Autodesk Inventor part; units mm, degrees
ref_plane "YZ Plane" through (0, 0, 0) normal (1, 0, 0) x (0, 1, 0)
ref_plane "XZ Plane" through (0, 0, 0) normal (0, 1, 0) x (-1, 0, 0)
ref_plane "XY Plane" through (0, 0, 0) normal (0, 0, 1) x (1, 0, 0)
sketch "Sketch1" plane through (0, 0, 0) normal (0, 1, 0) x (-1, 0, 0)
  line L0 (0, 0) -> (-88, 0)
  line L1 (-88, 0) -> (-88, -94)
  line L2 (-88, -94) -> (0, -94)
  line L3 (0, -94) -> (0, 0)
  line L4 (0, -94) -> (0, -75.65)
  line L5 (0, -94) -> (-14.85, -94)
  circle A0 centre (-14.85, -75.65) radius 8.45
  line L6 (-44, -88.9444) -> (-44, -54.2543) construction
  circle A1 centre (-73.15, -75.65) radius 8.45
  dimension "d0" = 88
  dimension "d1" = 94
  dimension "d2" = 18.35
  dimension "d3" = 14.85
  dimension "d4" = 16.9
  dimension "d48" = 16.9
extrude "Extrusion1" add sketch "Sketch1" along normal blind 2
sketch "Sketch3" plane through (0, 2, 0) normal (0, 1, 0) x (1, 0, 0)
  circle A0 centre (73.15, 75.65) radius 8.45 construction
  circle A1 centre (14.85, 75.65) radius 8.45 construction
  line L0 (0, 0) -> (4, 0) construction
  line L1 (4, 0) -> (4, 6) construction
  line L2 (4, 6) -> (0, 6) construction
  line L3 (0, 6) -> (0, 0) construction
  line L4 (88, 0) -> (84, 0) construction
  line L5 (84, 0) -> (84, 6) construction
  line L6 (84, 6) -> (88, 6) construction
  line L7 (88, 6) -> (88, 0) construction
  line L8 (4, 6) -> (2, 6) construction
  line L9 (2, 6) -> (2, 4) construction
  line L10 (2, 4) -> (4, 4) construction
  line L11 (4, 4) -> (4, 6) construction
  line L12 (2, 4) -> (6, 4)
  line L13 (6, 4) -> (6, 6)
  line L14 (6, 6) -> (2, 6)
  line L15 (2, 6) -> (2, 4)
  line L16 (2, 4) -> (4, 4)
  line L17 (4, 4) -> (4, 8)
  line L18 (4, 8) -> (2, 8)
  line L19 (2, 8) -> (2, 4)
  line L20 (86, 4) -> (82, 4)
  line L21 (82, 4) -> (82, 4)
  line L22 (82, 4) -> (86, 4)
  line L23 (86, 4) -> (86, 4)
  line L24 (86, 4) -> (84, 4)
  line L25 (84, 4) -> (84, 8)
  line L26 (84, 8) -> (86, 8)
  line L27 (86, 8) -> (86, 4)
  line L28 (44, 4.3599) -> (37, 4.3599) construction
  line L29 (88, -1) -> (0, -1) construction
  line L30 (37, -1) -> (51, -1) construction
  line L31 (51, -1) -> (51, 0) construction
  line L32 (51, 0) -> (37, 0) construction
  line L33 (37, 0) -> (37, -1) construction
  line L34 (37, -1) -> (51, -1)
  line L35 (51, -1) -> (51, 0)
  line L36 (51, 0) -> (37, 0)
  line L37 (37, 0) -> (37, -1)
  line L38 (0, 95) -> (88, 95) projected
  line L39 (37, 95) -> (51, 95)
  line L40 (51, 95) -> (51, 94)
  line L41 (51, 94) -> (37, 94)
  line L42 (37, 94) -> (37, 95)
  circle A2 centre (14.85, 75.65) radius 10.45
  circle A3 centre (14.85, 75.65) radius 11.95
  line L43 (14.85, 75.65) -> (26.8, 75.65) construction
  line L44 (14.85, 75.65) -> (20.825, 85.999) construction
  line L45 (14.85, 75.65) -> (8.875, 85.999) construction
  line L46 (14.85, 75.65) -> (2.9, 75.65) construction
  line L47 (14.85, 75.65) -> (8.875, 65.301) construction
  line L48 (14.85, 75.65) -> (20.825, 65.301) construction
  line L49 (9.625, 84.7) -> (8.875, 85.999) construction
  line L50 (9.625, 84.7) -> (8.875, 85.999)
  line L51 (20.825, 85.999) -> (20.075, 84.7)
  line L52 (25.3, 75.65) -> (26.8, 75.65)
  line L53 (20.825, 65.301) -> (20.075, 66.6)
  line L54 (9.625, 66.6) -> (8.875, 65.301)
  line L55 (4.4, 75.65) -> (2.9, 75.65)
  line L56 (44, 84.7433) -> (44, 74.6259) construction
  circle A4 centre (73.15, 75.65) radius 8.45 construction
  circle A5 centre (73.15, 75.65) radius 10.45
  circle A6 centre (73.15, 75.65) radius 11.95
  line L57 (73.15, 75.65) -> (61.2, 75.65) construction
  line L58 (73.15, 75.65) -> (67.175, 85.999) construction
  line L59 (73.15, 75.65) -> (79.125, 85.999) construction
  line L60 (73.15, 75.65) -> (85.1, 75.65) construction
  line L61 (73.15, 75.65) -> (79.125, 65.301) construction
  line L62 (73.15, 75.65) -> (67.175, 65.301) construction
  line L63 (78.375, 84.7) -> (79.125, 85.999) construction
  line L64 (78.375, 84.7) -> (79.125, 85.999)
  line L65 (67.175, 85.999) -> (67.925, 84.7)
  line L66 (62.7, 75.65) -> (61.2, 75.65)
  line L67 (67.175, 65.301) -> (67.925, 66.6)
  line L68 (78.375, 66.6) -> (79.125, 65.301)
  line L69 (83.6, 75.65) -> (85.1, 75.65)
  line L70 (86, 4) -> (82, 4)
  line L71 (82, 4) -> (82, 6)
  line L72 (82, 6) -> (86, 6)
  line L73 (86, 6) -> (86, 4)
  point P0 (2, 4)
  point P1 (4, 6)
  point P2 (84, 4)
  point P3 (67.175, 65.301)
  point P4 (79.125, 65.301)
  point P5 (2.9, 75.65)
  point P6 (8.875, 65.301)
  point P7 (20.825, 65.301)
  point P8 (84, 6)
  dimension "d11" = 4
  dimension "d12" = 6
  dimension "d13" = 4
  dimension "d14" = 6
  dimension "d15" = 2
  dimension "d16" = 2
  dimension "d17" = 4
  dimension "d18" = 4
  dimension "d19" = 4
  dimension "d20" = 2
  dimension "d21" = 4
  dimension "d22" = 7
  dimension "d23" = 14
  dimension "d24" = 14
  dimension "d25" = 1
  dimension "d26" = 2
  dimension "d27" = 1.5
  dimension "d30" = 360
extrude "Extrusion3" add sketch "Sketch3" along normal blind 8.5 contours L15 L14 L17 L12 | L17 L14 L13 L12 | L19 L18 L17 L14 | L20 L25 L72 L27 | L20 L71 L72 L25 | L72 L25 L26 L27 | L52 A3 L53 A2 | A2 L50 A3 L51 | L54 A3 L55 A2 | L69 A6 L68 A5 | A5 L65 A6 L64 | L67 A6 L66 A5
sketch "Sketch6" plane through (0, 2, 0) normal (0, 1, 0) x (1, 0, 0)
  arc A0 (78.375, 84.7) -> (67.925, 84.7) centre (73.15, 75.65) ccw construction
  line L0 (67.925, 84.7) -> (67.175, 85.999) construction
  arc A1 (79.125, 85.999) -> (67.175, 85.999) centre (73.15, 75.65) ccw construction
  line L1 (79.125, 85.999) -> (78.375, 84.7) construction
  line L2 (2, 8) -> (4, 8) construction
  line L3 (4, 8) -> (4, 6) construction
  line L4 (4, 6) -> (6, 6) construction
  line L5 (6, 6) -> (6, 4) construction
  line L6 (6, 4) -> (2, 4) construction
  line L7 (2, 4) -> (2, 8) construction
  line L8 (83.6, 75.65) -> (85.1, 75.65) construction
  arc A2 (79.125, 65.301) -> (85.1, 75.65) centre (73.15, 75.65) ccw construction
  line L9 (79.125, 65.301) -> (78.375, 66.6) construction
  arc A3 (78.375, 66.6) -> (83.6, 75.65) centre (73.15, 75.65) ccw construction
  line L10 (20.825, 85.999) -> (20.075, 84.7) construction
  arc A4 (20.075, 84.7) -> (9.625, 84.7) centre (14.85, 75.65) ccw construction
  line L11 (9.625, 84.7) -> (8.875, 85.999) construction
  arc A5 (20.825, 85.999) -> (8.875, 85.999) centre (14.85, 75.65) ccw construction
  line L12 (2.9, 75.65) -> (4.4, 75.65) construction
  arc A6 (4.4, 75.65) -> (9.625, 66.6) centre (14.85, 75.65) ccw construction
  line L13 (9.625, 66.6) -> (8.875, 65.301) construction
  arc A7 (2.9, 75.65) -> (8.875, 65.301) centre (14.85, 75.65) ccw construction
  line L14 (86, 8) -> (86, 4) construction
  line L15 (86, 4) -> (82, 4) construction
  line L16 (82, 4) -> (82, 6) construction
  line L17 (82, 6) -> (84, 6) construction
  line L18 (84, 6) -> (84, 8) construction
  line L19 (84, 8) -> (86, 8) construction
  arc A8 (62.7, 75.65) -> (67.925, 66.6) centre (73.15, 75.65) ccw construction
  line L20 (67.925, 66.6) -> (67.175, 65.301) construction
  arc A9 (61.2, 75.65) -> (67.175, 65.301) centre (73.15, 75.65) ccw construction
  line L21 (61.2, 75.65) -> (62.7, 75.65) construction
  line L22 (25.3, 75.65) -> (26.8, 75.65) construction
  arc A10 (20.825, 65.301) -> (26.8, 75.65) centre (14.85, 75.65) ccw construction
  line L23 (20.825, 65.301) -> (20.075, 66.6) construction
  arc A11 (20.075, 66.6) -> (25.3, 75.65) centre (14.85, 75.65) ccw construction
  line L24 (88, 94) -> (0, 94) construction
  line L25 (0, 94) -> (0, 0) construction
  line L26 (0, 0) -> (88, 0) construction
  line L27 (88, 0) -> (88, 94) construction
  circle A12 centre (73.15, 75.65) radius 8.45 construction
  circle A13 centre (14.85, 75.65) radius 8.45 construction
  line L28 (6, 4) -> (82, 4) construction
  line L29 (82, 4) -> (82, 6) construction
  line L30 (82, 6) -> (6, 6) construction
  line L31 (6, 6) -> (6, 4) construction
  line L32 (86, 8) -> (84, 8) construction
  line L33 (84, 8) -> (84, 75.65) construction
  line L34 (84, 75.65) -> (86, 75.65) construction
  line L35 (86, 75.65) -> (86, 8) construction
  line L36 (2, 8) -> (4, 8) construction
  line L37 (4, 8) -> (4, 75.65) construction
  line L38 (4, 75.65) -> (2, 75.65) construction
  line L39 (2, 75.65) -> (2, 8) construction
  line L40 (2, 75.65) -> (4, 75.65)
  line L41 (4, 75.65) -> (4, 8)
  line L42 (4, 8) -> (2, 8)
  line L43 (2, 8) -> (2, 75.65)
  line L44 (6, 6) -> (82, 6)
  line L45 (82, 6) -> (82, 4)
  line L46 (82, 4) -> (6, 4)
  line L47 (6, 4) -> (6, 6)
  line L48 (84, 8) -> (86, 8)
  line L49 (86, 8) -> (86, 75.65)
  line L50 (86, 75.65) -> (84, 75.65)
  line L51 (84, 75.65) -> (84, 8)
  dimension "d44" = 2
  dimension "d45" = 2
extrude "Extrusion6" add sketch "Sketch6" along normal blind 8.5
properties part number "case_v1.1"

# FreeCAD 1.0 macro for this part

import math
import FreeCAD as App
import Part
import Sketcher
from FreeCAD import Vector
Q = App.Units.Quantity

doc = App.newDocument("Part")
params = doc.addObject("Spreadsheet::Sheet", "Params")
for row, (alias, value) in enumerate([
    ("sketch1_diameter", "16.9 mm"),
    ("sketch1_width", "88 mm"),
    ("sketch1_height", "94 mm"),
    ("pad1_length", "2 mm"),
    ("sketch2_width", "4 mm"),
    ("sketch2_width2", "1.5 mm"),
    ("sketch2_radius", "10.45 mm"),
    ("pad2_length", "8.5 mm"),
    ("sketch3_width", "2 mm"),
    ("sketch3_width2", "76 mm"),
    ("sketch3_height", "67.65 mm"),
    ("pad3_length", "8.5 mm"),
], start=1):
    params.set(f"A{row}", alias)
    params.set(f"B{row}", "=" + value)
    params.setAlias(f"B{row}", alias)

body = doc.addObject("PartDesign::Body", "Body")

sketch1 = doc.addObject("Sketcher::SketchObject", "Sketch")
body.addObject(sketch1)
sketch1.AttachmentSupport = (doc.XZ_Plane, [""])
sketch1.MapMode = "FlatFace"
sketch1.addGeometry([
    Part.LineSegment(Vector(0, -94, 0), Vector(0, 0, 0)),
    Part.LineSegment(Vector(0, 0, 0), Vector(88, 0, 0)),
    Part.LineSegment(Vector(88, 0, 0), Vector(88, -94, 0)),
    Part.LineSegment(Vector(88, -94, 0), Vector(0, -94, 0)),
    Part.Circle(Vector(73, -76, 0), Vector(0, 0, 1), 8),
    Part.Circle(Vector(15, -76, 0), Vector(0, 0, 1), 8),
], False)
sketch1.addConstraint([
    Sketcher.Constraint("Coincident", 0, 2, 1, 1),
    Sketcher.Constraint("Coincident", 1, 2, 2, 1),
    Sketcher.Constraint("Coincident", 2, 2, 3, 1),
    Sketcher.Constraint("Coincident", 3, 2, 0, 1),
    Sketcher.Constraint("Vertical", 0),
    Sketcher.Constraint("Horizontal", 1),
    Sketcher.Constraint("Vertical", 2),
    Sketcher.Constraint("Horizontal", 3),
    Sketcher.Constraint("Coincident", 0, 2, -1, 1),
    Sketcher.Constraint("Equal", 4, 5),
    Sketcher.Constraint("Horizontal", 4, 3, 5, 3),
    Sketcher.Constraint("Diameter", 4, Q("16.9 mm")),
    Sketcher.Constraint("DistanceX", 1, 1, 1, 2, Q("88 mm")),
    Sketcher.Constraint("DistanceY", 0, 1, 0, 2, Q("94 mm")),
    Sketcher.Constraint("DistanceX", -1, 1, 5, 3, Q("14.85 mm")),
    Sketcher.Constraint("DistanceX", 4, 3, 1, 2, Q("14.85 mm")),
    Sketcher.Constraint("DistanceY", 2, 2, 4, 3, Q("18.35 mm")),
])
sketch1.setExpression("Constraints[11]", "Params.sketch1_diameter")
sketch1.setExpression("Constraints[12]", "Params.sketch1_width")
sketch1.setExpression("Constraints[13]", "Params.sketch1_height")
pad1 = doc.addObject("PartDesign::Pad", "Pad")
body.addObject(pad1)
pad1.Profile = sketch1
pad1.setExpression("Length", "Params.pad1_length")
pad1.Reversed = True

sketch2 = doc.addObject("Sketcher::SketchObject", "Sketch001")
body.addObject(sketch2)
sketch2.AttachmentSupport = (doc.XZ_Plane, [""])
sketch2.MapMode = "FlatFace"
sketch2.AttachmentOffset = App.Placement(Vector(0, 0, -2), App.Rotation())
sketch2.addGeometry([
    Part.LineSegment(Vector(2, -4, 0), Vector(6, -4, 0)),
    Part.LineSegment(Vector(6, -4, 0), Vector(6, -6, 0)),
    Part.LineSegment(Vector(6, -6, 0), Vector(4, -6, 0)),
    Part.LineSegment(Vector(4, -6, 0), Vector(4, -8, 0)),
    Part.LineSegment(Vector(4, -8, 0), Vector(2, -8, 0)),
    Part.LineSegment(Vector(2, -8, 0), Vector(2, -4, 0)),
    Part.LineSegment(Vector(86, -4, 0), Vector(86, -8, 0)),
    Part.LineSegment(Vector(86, -8, 0), Vector(84, -8, 0)),
    Part.LineSegment(Vector(84, -8, 0), Vector(84, -6, 0)),
    Part.LineSegment(Vector(84, -6, 0), Vector(82, -6, 0)),
    Part.LineSegment(Vector(82, -6, 0), Vector(82, -4, 0)),
    Part.LineSegment(Vector(82, -4, 0), Vector(86, -4, 0)),
    Part.LineSegment(Vector(26.8, -75.7, 0), Vector(25.3, -75.7, 0)),
    Part.ArcOfCircle(Part.Circle(Vector(14.8, -75.7, 0), Vector(0, 0, 1), 10.4), math.radians(0), math.radians(60)),
    Part.LineSegment(Vector(20.1, -66.6, 0), Vector(20.8, -65.3, 0)),
    Part.ArcOfCircle(Part.Circle(Vector(14.8, -75.7, 0), Vector(0, 0, 1), 11.9), math.radians(0), math.radians(60)),
    Part.ArcOfCircle(Part.Circle(Vector(14.8, -75.7, 0), Vector(0, 0, 1), 10.4), math.radians(-120), math.radians(-60)),
    Part.LineSegment(Vector(20.1, -84.7, 0), Vector(20.8, -86, 0)),
    Part.ArcOfCircle(Part.Circle(Vector(14.8, -75.7, 0), Vector(0, 0, 1), 11.9), math.radians(-120), math.radians(-60)),
    Part.LineSegment(Vector(8.9, -86, 0), Vector(9.6, -84.7, 0)),
    Part.LineSegment(Vector(8.9, -65.3, 0), Vector(9.6, -66.6, 0)),
    Part.ArcOfCircle(Part.Circle(Vector(14.8, -75.7, 0), Vector(0, 0, 1), 10.4), math.radians(120), math.radians(180)),
    Part.LineSegment(Vector(4.4, -75.7, 0), Vector(2.9, -75.7, 0)),
    Part.ArcOfCircle(Part.Circle(Vector(14.8, -75.7, 0), Vector(0, 0, 1), 11.9), math.radians(120), math.radians(180)),
    Part.LineSegment(Vector(85.1, -75.7, 0), Vector(83.6, -75.7, 0)),
    Part.ArcOfCircle(Part.Circle(Vector(73.2, -75.7, 0), Vector(0, 0, 1), 10.4), math.radians(0), math.radians(60)),
    Part.LineSegment(Vector(78.4, -66.6, 0), Vector(79.1, -65.3, 0)),
    Part.ArcOfCircle(Part.Circle(Vector(73.2, -75.7, 0), Vector(0, 0, 1), 11.9), math.radians(0), math.radians(60)),
    Part.ArcOfCircle(Part.Circle(Vector(73.2, -75.7, 0), Vector(0, 0, 1), 10.4), math.radians(-120), math.radians(-60)),
    Part.LineSegment(Vector(78.4, -84.7, 0), Vector(79.1, -86, 0)),
    Part.ArcOfCircle(Part.Circle(Vector(73.2, -75.7, 0), Vector(0, 0, 1), 11.9), math.radians(-120), math.radians(-60)),
    Part.LineSegment(Vector(67.2, -86, 0), Vector(67.9, -84.7, 0)),
    Part.LineSegment(Vector(67.2, -65.3, 0), Vector(67.9, -66.6, 0)),
    Part.ArcOfCircle(Part.Circle(Vector(73.2, -75.7, 0), Vector(0, 0, 1), 10.4), math.radians(120), math.radians(180)),
    Part.LineSegment(Vector(62.7, -75.7, 0), Vector(61.2, -75.7, 0)),
    Part.ArcOfCircle(Part.Circle(Vector(73.2, -75.7, 0), Vector(0, 0, 1), 11.9), math.radians(120), math.radians(180)),
], False)
sketch2.addConstraint([
    Sketcher.Constraint("Coincident", 0, 2, 1, 1),
    Sketcher.Constraint("Coincident", 1, 2, 2, 1),
    Sketcher.Constraint("Coincident", 2, 2, 3, 1),
    Sketcher.Constraint("Coincident", 3, 2, 4, 1),
    Sketcher.Constraint("Coincident", 4, 2, 5, 1),
    Sketcher.Constraint("Coincident", 5, 2, 0, 1),
    Sketcher.Constraint("Coincident", 6, 2, 7, 1),
    Sketcher.Constraint("Coincident", 7, 2, 8, 1),
    Sketcher.Constraint("Coincident", 8, 2, 9, 1),
    Sketcher.Constraint("Coincident", 9, 2, 10, 1),
    Sketcher.Constraint("Coincident", 10, 2, 11, 1),
    Sketcher.Constraint("Coincident", 11, 2, 6, 1),
    Sketcher.Constraint("Coincident", 12, 2, 13, 1),
    Sketcher.Constraint("Coincident", 13, 2, 14, 1),
    Sketcher.Constraint("Coincident", 14, 2, 15, 2),
    Sketcher.Constraint("Coincident", 15, 1, 12, 1),
    Sketcher.Constraint("Coincident", 16, 2, 17, 1),
    Sketcher.Constraint("Coincident", 17, 2, 18, 2),
    Sketcher.Constraint("Coincident", 18, 1, 19, 1),
    Sketcher.Constraint("Coincident", 19, 2, 16, 1),
    Sketcher.Constraint("Coincident", 20, 2, 21, 1),
    Sketcher.Constraint("Coincident", 21, 2, 22, 1),
    Sketcher.Constraint("Coincident", 22, 2, 23, 2),
    Sketcher.Constraint("Coincident", 23, 1, 20, 1),
    Sketcher.Constraint("Coincident", 24, 2, 25, 1),
    Sketcher.Constraint("Coincident", 25, 2, 26, 1),
    Sketcher.Constraint("Coincident", 26, 2, 27, 2),
    Sketcher.Constraint("Coincident", 27, 1, 24, 1),
    Sketcher.Constraint("Coincident", 28, 2, 29, 1),
    Sketcher.Constraint("Coincident", 29, 2, 30, 2),
    Sketcher.Constraint("Coincident", 30, 1, 31, 1),
    Sketcher.Constraint("Coincident", 31, 2, 28, 1),
    Sketcher.Constraint("Coincident", 32, 2, 33, 1),
    Sketcher.Constraint("Coincident", 33, 2, 34, 1),
    Sketcher.Constraint("Coincident", 34, 2, 35, 2),
    Sketcher.Constraint("Coincident", 35, 1, 32, 1),
    Sketcher.Constraint("Horizontal", 0),
    Sketcher.Constraint("Vertical", 1),
    Sketcher.Constraint("Horizontal", 2),
    Sketcher.Constraint("Vertical", 3),
    Sketcher.Constraint("Horizontal", 4),
    Sketcher.Constraint("Vertical", 5),
    Sketcher.Constraint("Vertical", 6),
    Sketcher.Constraint("Horizontal", 7),
    Sketcher.Constraint("Vertical", 8),
    Sketcher.Constraint("Horizontal", 9),
    Sketcher.Constraint("Vertical", 10),
    Sketcher.Constraint("Horizontal", 11),
    Sketcher.Constraint("Horizontal", 12),
    Sketcher.Constraint("Horizontal", 22),
    Sketcher.Constraint("Horizontal", 24),
    Sketcher.Constraint("Horizontal", 34),
    Sketcher.Constraint("Coincident", 15, 3, 13, 3),
    Sketcher.Constraint("Coincident", 16, 3, 13, 3),
    Sketcher.Constraint("Coincident", 18, 3, 13, 3),
    Sketcher.Constraint("Coincident", 21, 3, 13, 3),
    Sketcher.Constraint("Coincident", 23, 3, 13, 3),
    Sketcher.Constraint("Coincident", 27, 3, 25, 3),
    Sketcher.Constraint("Coincident", 28, 3, 25, 3),
    Sketcher.Constraint("Coincident", 30, 3, 25, 3),
    Sketcher.Constraint("Coincident", 33, 3, 25, 3),
    Sketcher.Constraint("Coincident", 35, 3, 25, 3),
    Sketcher.Constraint("Equal", 13, 16),
    Sketcher.Constraint("Equal", 15, 18),
    Sketcher.Constraint("Equal", 16, 21),
    Sketcher.Constraint("Equal", 18, 23),
    Sketcher.Constraint("Equal", 21, 25),
    Sketcher.Constraint("Equal", 23, 27),
    Sketcher.Constraint("Equal", 25, 28),
    Sketcher.Constraint("Equal", 27, 30),
    Sketcher.Constraint("Equal", 28, 33),
    Sketcher.Constraint("Equal", 30, 35),
    Sketcher.Constraint("Parallel", 14, 19),
    Sketcher.Constraint("Parallel", 17, 20),
    Sketcher.Constraint("Parallel", 19, 26),
    Sketcher.Constraint("Parallel", 20, 29),
    Sketcher.Constraint("Parallel", 26, 31),
    Sketcher.Constraint("Parallel", 29, 32),
    Sketcher.Constraint("Horizontal", 23, 3, 25, 3),
    Sketcher.Constraint("Horizontal", 4, 2, 6, 2),
    Sketcher.Constraint("Horizontal", 2, 2, 8, 2),
    Sketcher.Constraint("Horizontal", 5, 2, 10, 2),
    Sketcher.Constraint("Horizontal", 35, 3, 12, 2),
    Sketcher.Constraint("Horizontal", 17, 2, 18, 1),
    Sketcher.Constraint("Horizontal", 16, 2, 19, 2),
    Sketcher.Constraint("Horizontal", 13, 2, 20, 2),
    Sketcher.Constraint("Horizontal", 15, 1, 21, 2),
    Sketcher.Constraint("Horizontal", 22, 2, 24, 2),
    Sketcher.Constraint("Horizontal", 20, 2, 25, 2),
    Sketcher.Constraint("Horizontal", 19, 2, 28, 2),
    Sketcher.Constraint("Horizontal", 29, 2, 30, 1),
    Sketcher.Constraint("Horizontal", 25, 2, 32, 2),
    Sketcher.Constraint("Horizontal", 27, 1, 33, 2),
    Sketcher.Constraint("Vertical", 13, 2, 16, 2),
    Sketcher.Constraint("Equal", 2, 4),
    Sketcher.Constraint("Equal", 4, 7),
    Sketcher.Constraint("Equal", 7, 9),
    Sketcher.Constraint("Equal", 9, 1),
    Sketcher.Constraint("Equal", 1, 3),
    Sketcher.Constraint("DistanceX", 0, 1, 0, 2, Q("4 mm")),
    Sketcher.Constraint("DistanceX", 12, 2, 12, 1, Q("1.5 mm")),
    Sketcher.Constraint("DistanceX", -1, 1, 0, 2, Q("6 mm")),
    Sketcher.Constraint("DistanceY", 0, 2, -1, 1, Q("4 mm")),
    Sketcher.Constraint("Angle", 14, Q("59.9993 deg")),
    Sketcher.Constraint("Radius", 13, Q("10.45 mm")),
    Sketcher.Constraint("DistanceX", -1, 1, 6, 2, Q("86 mm")),
    Sketcher.Constraint("DistanceX", -1, 1, 12, 2, Q("25.3 mm")),
    Sketcher.Constraint("DistanceY", 13, 2, -1, 1, Q("66.6 mm")),
    Sketcher.Constraint("DistanceY", 16, 2, -1, 1, Q("84.7 mm")),
    Sketcher.Constraint("DistanceX", -1, 1, 24, 2, Q("83.6 mm")),
])
sketch2.setExpression("Constraints[99]", "Params.sketch2_width")
sketch2.setExpression("Constraints[100]", "Params.sketch2_width2")
sketch2.setExpression("Constraints[104]", "Params.sketch2_radius")
pad2 = doc.addObject("PartDesign::Pad", "Pad001")
body.addObject(pad2)
pad2.Profile = sketch2
pad2.setExpression("Length", "Params.pad2_length")
pad2.Reversed = True

sketch3 = doc.addObject("Sketcher::SketchObject", "Sketch002")
body.addObject(sketch3)
sketch3.AttachmentSupport = (doc.XZ_Plane, [""])
sketch3.MapMode = "FlatFace"
sketch3.AttachmentOffset = App.Placement(Vector(0, 0, -2), App.Rotation())
sketch3.addGeometry([
    Part.LineSegment(Vector(4, -75.7, 0), Vector(2, -75.7, 0)),
    Part.LineSegment(Vector(2, -75.7, 0), Vector(2, -8, 0)),
    Part.LineSegment(Vector(2, -8, 0), Vector(4, -8, 0)),
    Part.LineSegment(Vector(4, -8, 0), Vector(4, -75.7, 0)),
    Part.LineSegment(Vector(82, -6, 0), Vector(6, -6, 0)),
    Part.LineSegment(Vector(6, -6, 0), Vector(6, -4, 0)),
    Part.LineSegment(Vector(6, -4, 0), Vector(82, -4, 0)),
    Part.LineSegment(Vector(82, -4, 0), Vector(82, -6, 0)),
    Part.LineSegment(Vector(84, -75.7, 0), Vector(84, -8, 0)),
    Part.LineSegment(Vector(84, -8, 0), Vector(86, -8, 0)),
    Part.LineSegment(Vector(86, -8, 0), Vector(86, -75.7, 0)),
    Part.LineSegment(Vector(86, -75.7, 0), Vector(84, -75.7, 0)),
], False)
sketch3.addConstraint([
    Sketcher.Constraint("Coincident", 0, 2, 1, 1),
    Sketcher.Constraint("Coincident", 1, 2, 2, 1),
    Sketcher.Constraint("Coincident", 2, 2, 3, 1),
    Sketcher.Constraint("Coincident", 3, 2, 0, 1),
    Sketcher.Constraint("Coincident", 4, 2, 5, 1),
    Sketcher.Constraint("Coincident", 5, 2, 6, 1),
    Sketcher.Constraint("Coincident", 6, 2, 7, 1),
    Sketcher.Constraint("Coincident", 7, 2, 4, 1),
    Sketcher.Constraint("Coincident", 8, 2, 9, 1),
    Sketcher.Constraint("Coincident", 9, 2, 10, 1),
    Sketcher.Constraint("Coincident", 10, 2, 11, 1),
    Sketcher.Constraint("Coincident", 11, 2, 8, 1),
    Sketcher.Constraint("Horizontal", 0),
    Sketcher.Constraint("Vertical", 1),
    Sketcher.Constraint("Horizontal", 2),
    Sketcher.Constraint("Vertical", 3),
    Sketcher.Constraint("Horizontal", 4),
    Sketcher.Constraint("Vertical", 5),
    Sketcher.Constraint("Horizontal", 6),
    Sketcher.Constraint("Vertical", 7),
    Sketcher.Constraint("Vertical", 8),
    Sketcher.Constraint("Horizontal", 9),
    Sketcher.Constraint("Vertical", 10),
    Sketcher.Constraint("Horizontal", 11),
    Sketcher.Constraint("Horizontal", 2, 2, 8, 2),
    Sketcher.Constraint("Horizontal", 3, 2, 10, 2),
    Sketcher.Constraint("Equal", 2, 9),
    Sketcher.Constraint("Equal", 11, 5),
    Sketcher.Constraint("DistanceX", 0, 2, 0, 1, Q("2 mm")),
    Sketcher.Constraint("DistanceX", -1, 1, 0, 2, Q("2 mm")),
    Sketcher.Constraint("DistanceX", 2, 2, 4, 2, Q("2 mm")),
    Sketcher.Constraint("DistanceY", 2, 2, 4, 2, Q("2 mm")),
    Sketcher.Constraint("DistanceX", 7, 2, 8, 2, Q("2 mm")),
    Sketcher.Constraint("DistanceX", 4, 2, 4, 1, Q("76 mm")),
    Sketcher.Constraint("DistanceY", 1, 2, -1, 1, Q("8 mm")),
    Sketcher.Constraint("DistanceY", 1, 1, 1, 2, Q("67.65 mm")),
])
sketch3.setExpression("Constraints[28]", "Params.sketch3_width")
sketch3.setExpression("Constraints[33]", "Params.sketch3_width2")
sketch3.setExpression("Constraints[35]", "Params.sketch3_height")
pad3 = doc.addObject("PartDesign::Pad", "Pad002")
body.addObject(pad3)
pad3.Profile = sketch3
pad3.setExpression("Length", "Params.pad3_length")
pad3.Reversed = True

doc.recompute()
